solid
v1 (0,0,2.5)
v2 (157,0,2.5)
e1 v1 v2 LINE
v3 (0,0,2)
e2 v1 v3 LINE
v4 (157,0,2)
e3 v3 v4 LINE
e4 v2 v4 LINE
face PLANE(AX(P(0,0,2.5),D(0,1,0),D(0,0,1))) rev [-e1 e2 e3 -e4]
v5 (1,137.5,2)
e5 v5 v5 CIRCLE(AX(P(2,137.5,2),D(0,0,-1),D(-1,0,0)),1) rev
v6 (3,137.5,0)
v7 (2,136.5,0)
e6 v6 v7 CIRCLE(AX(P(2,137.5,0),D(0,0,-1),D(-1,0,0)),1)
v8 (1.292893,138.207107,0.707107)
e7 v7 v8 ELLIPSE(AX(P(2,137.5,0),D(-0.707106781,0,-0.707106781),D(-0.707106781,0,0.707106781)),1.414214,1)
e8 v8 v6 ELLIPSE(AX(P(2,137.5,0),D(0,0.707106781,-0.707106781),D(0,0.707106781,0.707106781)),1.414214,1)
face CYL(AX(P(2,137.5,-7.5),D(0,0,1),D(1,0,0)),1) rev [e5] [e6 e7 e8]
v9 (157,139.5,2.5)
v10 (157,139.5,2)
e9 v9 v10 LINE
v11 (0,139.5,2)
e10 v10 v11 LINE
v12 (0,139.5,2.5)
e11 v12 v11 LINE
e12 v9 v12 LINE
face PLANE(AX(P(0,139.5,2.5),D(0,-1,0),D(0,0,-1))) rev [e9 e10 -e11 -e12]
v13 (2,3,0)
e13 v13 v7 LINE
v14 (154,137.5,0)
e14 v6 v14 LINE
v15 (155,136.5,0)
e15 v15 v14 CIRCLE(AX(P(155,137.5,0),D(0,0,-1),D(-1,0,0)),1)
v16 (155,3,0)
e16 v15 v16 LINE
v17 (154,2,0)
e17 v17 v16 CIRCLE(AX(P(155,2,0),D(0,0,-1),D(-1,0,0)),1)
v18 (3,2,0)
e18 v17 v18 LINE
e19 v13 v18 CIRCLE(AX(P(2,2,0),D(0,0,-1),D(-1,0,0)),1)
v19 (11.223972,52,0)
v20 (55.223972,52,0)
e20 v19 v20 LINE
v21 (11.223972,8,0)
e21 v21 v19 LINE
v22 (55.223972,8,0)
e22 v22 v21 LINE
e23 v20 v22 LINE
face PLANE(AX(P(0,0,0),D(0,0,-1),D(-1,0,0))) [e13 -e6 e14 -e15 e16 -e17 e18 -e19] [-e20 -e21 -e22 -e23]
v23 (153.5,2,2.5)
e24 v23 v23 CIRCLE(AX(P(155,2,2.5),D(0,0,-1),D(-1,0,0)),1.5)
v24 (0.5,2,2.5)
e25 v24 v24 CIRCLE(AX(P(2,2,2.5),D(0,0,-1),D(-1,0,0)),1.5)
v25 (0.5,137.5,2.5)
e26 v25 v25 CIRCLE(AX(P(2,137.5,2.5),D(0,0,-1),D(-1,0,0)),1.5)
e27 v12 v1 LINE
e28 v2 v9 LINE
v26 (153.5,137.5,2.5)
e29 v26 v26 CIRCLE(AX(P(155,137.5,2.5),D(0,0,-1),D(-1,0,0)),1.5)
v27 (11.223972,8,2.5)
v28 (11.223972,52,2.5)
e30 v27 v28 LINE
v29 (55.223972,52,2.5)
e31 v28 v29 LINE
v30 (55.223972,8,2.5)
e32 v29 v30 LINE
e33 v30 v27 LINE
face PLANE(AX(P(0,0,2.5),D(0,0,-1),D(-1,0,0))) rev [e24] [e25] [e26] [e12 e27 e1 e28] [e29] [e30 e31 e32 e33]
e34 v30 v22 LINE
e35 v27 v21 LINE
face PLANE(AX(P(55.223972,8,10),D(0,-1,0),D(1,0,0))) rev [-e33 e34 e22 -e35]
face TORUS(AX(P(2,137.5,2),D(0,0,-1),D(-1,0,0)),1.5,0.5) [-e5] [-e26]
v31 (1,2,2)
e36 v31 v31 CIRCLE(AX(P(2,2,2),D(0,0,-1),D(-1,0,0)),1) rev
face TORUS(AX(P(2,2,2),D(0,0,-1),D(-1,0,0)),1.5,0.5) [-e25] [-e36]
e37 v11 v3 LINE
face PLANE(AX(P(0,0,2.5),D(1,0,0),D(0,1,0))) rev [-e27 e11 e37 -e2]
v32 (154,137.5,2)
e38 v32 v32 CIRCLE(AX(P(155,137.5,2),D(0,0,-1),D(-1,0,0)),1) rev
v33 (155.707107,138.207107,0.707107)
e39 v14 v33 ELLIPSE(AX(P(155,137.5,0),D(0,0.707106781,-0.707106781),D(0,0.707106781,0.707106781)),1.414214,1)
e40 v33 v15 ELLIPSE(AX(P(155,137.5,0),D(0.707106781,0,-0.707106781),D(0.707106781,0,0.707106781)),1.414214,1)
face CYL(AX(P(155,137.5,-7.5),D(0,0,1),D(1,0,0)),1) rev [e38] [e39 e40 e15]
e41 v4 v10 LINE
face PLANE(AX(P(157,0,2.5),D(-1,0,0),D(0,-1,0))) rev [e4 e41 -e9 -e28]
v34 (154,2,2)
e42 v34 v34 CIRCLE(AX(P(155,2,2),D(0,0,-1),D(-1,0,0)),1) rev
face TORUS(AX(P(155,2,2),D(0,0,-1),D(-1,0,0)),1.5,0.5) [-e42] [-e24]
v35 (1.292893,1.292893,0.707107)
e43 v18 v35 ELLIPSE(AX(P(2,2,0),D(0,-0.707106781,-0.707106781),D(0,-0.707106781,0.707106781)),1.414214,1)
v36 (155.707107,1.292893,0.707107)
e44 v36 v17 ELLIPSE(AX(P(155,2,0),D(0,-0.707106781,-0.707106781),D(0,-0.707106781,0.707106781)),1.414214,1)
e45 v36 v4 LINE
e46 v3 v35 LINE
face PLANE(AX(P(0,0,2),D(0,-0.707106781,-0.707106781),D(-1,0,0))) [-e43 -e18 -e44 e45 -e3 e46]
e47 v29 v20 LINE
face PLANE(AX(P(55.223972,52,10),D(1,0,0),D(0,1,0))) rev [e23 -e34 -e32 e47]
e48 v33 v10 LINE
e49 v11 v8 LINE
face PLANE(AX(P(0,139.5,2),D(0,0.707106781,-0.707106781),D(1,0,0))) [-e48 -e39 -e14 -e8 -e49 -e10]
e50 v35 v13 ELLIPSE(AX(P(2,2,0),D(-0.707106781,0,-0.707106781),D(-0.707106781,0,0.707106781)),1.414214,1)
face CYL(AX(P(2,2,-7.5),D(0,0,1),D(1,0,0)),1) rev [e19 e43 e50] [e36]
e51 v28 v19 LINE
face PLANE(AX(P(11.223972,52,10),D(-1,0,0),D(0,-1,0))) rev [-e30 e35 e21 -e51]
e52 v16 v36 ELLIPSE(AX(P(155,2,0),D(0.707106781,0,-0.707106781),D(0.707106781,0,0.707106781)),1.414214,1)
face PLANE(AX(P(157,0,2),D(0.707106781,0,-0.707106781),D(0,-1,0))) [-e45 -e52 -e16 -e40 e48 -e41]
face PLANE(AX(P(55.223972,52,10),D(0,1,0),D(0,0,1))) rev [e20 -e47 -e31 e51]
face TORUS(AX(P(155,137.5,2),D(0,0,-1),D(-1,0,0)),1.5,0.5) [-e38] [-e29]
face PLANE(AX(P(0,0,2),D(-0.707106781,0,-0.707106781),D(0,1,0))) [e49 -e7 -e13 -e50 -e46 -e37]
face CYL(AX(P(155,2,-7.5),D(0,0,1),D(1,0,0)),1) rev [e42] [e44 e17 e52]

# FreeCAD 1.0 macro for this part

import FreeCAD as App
import Part
import Sketcher
Q = App.Units.Quantity


def edges_at(feature, points):
    """Names of the edges that pass closest to the given points."""
    edges = feature.Shape.Edges
    near = lambda p: min(range(len(edges)), key=lambda i: edges[i].distToShape(Part.Vertex(*p))[0])
    return sorted({f"Edge{near(p) + 1}" for p in points})

doc = App.newDocument("Part")
body = doc.addObject("PartDesign::Body", "Body")

sketch1 = body.newObject("Sketcher::SketchObject", "Sketch")
sketch1.AttachmentSupport = (doc.getObject("XY_Plane"), [""])
sketch1.MapMode = "FlatFace"
sketch1.addGeometry([
    Part.LineSegment(App.Vector(0, 139.5, 0), App.Vector(0, 0, 0)),
    Part.LineSegment(App.Vector(0, 0, 0), App.Vector(157, 0, 0)),
    Part.LineSegment(App.Vector(157, 0, 0), App.Vector(157, 139.5, 0)),
    Part.LineSegment(App.Vector(157, 139.5, 0), App.Vector(0, 139.5, 0)),
], False)
sketch1.addConstraint([
    Sketcher.Constraint("Coincident", 0, 2, 1, 1),
    Sketcher.Constraint("Coincident", 1, 2, 2, 1),
    Sketcher.Constraint("Coincident", 2, 2, 3, 1),
    Sketcher.Constraint("Coincident", 3, 2, 0, 1),
    Sketcher.Constraint("Vertical", 0),
    Sketcher.Constraint("Horizontal", 1),
    Sketcher.Constraint("Vertical", 2),
    Sketcher.Constraint("Horizontal", 3),
    Sketcher.Constraint("Coincident", 0, 2, -1, 1),
    Sketcher.Constraint("DistanceX", 1, 1, 1, 2, Q("157 mm")),
    Sketcher.Constraint("DistanceY", 0, 2, 0, 1, Q("139.5 mm")),
])
pad1 = body.newObject("PartDesign::Pad", "Pad")
pad1.Profile = sketch1
pad1.Length = 2.5
doc.recompute()

chamfer = body.newObject("PartDesign::Chamfer", "Chamfer")
chamfer.Base = (pad1, edges_at(pad1, [
    (78.5, 139.5, 0),
    (157, 69.75, 0),
    (78.5, 0, 0),
    (0, 69.75, 0),
]))
chamfer.Size = 2

sketch2 = body.newObject("Sketcher::SketchObject", "Sketch001")
sketch2.AttachmentSupport = (doc.getObject("XY_Plane"), [""])
sketch2.MapMode = "FlatFace"
sketch2.addGeometry([
    Part.LineSegment(App.Vector(55.223972, 52, 0), App.Vector(55.223972, 8, 0)),
    Part.LineSegment(App.Vector(55.223972, 8, 0), App.Vector(11.223972, 8, 0)),
    Part.LineSegment(App.Vector(11.223972, 8, 0), App.Vector(11.223972, 52, 0)),
    Part.LineSegment(App.Vector(11.223972, 52, 0), App.Vector(55.223972, 52, 0)),
], False)
sketch2.addConstraint([
    Sketcher.Constraint("Coincident", 0, 2, 1, 1),
    Sketcher.Constraint("Coincident", 1, 2, 2, 1),
    Sketcher.Constraint("Coincident", 2, 2, 3, 1),
    Sketcher.Constraint("Coincident", 3, 2, 0, 1),
    Sketcher.Constraint("Vertical", 0),
    Sketcher.Constraint("Horizontal", 1),
    Sketcher.Constraint("Vertical", 2),
    Sketcher.Constraint("Horizontal", 3),
    Sketcher.Constraint("Equal", 3, 0),
    Sketcher.Constraint("DistanceX", 1, 2, 1, 1, Q("44 mm")),
    Sketcher.Constraint("DistanceY", -1, 1, 0, 2, Q("8 mm")),
    Sketcher.Constraint("DistanceX", -1, 1, 0, 2, Q("55.223972 mm")),
])
pocket1 = body.newObject("PartDesign::Pocket", "Pocket")
pocket1.Profile = sketch2
pocket1.Length = 10
pocket1.Reversed = True

sketch3 = body.newObject("Sketcher::SketchObject", "Sketch002")
sketch3.AttachmentSupport = (doc.getObject("XY_Plane"), [""])
sketch3.MapMode = "FlatFace"
sketch3.AttachmentOffset = App.Placement(App.Vector(0, 0, 2.5), App.Rotation())
sketch3.addGeometry([
    Part.Circle(App.Vector(155, 137.5, 0), App.Vector(0, 0, 1), 1),
    Part.Circle(App.Vector(2, 137.5, 0), App.Vector(0, 0, 1), 1),
    Part.Circle(App.Vector(155, 2, 0), App.Vector(0, 0, 1), 1),
    Part.Circle(App.Vector(2, 2, 0), App.Vector(0, 0, 1), 1),
], False)
sketch3.addConstraint([
    Sketcher.Constraint("Equal", 0, 1),
    Sketcher.Constraint("Equal", 1, 2),
    Sketcher.Constraint("Equal", 2, 3),
    Sketcher.Constraint("Horizontal", 0, 3, 1, 3),
    Sketcher.Constraint("Horizontal", 2, 3, 3, 3),
    Sketcher.Constraint("Vertical", 0, 3, 2, 3),
    Sketcher.Constraint("Vertical", 1, 3, 3, 3),
    Sketcher.Constraint("Diameter", 0, Q("2 mm")),
    Sketcher.Constraint("DistanceX", -1, 1, 0, 3, Q("155 mm")),
    Sketcher.Constraint("DistanceX", -1, 1, 1, 3, Q("2 mm")),
    Sketcher.Constraint("DistanceY", -1, 1, 2, 3, Q("2 mm")),
    Sketcher.Constraint("DistanceY", -1, 1, 0, 3, Q("137.5 mm")),
])
pocket2 = body.newObject("PartDesign::Pocket", "Pocket001")
pocket2.Profile = sketch3
pocket2.Length = 10
doc.recompute()

fillet = body.newObject("PartDesign::Fillet", "Fillet")
fillet.Base = (pocket2, edges_at(pocket2, [
    (154, 2, 2.5),
    (154, 137.5, 2.5),
    (1, 137.5, 2.5),
    (1, 2, 2.5),
]))
fillet.Radius = 0.5

doc.recompute()
